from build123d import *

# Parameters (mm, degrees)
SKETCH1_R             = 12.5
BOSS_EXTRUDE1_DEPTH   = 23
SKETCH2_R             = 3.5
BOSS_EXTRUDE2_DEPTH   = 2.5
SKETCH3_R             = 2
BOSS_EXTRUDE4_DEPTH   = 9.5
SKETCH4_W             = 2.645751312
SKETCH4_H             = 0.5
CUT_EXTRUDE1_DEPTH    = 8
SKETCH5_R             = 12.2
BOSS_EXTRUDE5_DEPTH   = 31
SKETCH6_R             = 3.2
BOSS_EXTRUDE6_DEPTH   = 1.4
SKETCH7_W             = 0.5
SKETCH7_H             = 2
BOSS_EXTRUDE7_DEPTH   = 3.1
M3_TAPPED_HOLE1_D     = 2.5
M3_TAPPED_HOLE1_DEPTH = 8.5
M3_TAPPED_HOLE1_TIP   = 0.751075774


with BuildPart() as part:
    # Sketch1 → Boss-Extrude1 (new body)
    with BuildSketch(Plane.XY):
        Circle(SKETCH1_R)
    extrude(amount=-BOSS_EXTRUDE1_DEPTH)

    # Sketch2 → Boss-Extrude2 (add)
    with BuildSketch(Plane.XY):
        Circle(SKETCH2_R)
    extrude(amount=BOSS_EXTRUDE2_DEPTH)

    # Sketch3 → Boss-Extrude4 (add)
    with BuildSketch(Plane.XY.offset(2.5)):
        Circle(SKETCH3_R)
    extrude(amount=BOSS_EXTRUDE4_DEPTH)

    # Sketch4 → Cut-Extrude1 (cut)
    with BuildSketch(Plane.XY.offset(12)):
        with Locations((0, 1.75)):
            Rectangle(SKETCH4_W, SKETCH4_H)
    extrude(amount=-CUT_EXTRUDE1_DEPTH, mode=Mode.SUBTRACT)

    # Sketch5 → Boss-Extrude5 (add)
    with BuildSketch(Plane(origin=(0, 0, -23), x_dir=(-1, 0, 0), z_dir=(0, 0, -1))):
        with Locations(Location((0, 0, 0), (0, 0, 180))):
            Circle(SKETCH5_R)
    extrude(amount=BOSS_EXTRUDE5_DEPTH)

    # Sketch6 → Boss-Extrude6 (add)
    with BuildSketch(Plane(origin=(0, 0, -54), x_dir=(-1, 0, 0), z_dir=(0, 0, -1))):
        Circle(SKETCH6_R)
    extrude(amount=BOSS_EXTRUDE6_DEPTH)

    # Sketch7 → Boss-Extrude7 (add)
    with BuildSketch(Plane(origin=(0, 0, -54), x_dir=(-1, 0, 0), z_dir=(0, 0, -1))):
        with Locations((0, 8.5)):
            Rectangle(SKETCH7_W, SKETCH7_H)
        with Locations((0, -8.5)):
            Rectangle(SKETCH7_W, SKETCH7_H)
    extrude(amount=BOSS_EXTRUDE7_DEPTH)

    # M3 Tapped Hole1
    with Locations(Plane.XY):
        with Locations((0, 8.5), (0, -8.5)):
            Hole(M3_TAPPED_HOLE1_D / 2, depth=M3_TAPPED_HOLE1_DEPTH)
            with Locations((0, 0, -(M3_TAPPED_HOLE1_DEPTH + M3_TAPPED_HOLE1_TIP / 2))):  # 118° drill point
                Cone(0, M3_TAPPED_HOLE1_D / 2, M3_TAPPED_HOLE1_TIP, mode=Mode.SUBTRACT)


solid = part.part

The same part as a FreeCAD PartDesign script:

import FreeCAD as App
import Part
import Sketcher
Q = App.Units.Quantity

doc = App.newDocument("Part")
body = doc.addObject("PartDesign::Body", "Body")

sketch1 = doc.addObject("Sketcher::SketchObject", "Sketch")
body.addObject(sketch1)
sketch1.AttachmentSupport = (doc.XY_Plane, [""])
sketch1.MapMode = "FlatFace"
sketch1.addGeometry(Part.Circle(App.Vector(0, 0, 0), App.Vector(0, 0, 1), 12.5), False)
sketch1.addConstraint([
    Sketcher.Constraint("Coincident", 0, 3, -1, 1),
    Sketcher.Constraint("Diameter", 0, Q("25 mm")),
])
pad1 = doc.addObject("PartDesign::Pad", "Pad")
body.addObject(pad1)
pad1.Profile = sketch1
pad1.Length = 23
pad1.Reversed = True

sketch2 = doc.addObject("Sketcher::SketchObject", "Sketch001")
body.addObject(sketch2)
sketch2.AttachmentSupport = (doc.XY_Plane, [""])
sketch2.MapMode = "FlatFace"
sketch2.addGeometry(Part.Circle(App.Vector(0, 0, 0), App.Vector(0, 0, 1), 3.5), False)
sketch2.addConstraint([
    Sketcher.Constraint("Coincident", 0, 3, -1, 1),
    Sketcher.Constraint("Diameter", 0, Q("7 mm")),
])
pad2 = doc.addObject("PartDesign::Pad", "Pad001")
body.addObject(pad2)
pad2.Profile = sketch2
pad2.Length = 2.5

sketch3 = doc.addObject("Sketcher::SketchObject", "Sketch002")
body.addObject(sketch3)
sketch3.AttachmentSupport = (doc.XY_Plane, [""])
sketch3.MapMode = "FlatFace"
sketch3.AttachmentOffset = App.Placement(App.Vector(0, 0, 2.5), App.Rotation())
sketch3.addGeometry(Part.Circle(App.Vector(0, 0, 0), App.Vector(0, 0, 1), 2), False)
sketch3.addConstraint([
    Sketcher.Constraint("Coincident", 0, 3, -1, 1),
    Sketcher.Constraint("Diameter", 0, Q("4 mm")),
])
pad3 = doc.addObject("PartDesign::Pad", "Pad002")
body.addObject(pad3)
pad3.Profile = sketch3
pad3.Length = 9.5

sketch4 = doc.addObject("Sketcher::SketchObject", "Sketch003")
body.addObject(sketch4)
sketch4.AttachmentSupport = (doc.XY_Plane, [""])
sketch4.MapMode = "FlatFace"
sketch4.AttachmentOffset = App.Placement(App.Vector(0, 0, 12), App.Rotation())
sketch4.addGeometry([
    Part.LineSegment(App.Vector(-1.322876, 2, 0), App.Vector(-1.322876, 1.5, 0)),
    Part.LineSegment(App.Vector(-1.322876, 1.5, 0), App.Vector(1.322876, 1.5, 0)),
    Part.LineSegment(App.Vector(1.322876, 1.5, 0), App.Vector(1.322876, 2, 0)),
    Part.LineSegment(App.Vector(1.322876, 2, 0), App.Vector(-1.322876, 2, 0)),
], False)
sketch4.addConstraint([
    Sketcher.Constraint("Coincident", 0, 2, 1, 1),
    Sketcher.Constraint("Coincident", 1, 2, 2, 1),
    Sketcher.Constraint("Coincident", 2, 2, 3, 1),
    Sketcher.Constraint("Coincident", 3, 2, 0, 1),
    Sketcher.Constraint("Vertical", 0),
    Sketcher.Constraint("Horizontal", 1),
    Sketcher.Constraint("Vertical", 2),
    Sketcher.Constraint("Horizontal", 3),
    Sketcher.Constraint("DistanceY", 0, 2, 0, 1, Q("0.5 mm")),
    Sketcher.Constraint("DistanceY", -1, 1, 2, 2, Q("2 mm")),
    Sketcher.Constraint("DistanceX", 1, 1, 1, 2, Q("2.645751 mm")),
    Sketcher.Constraint("DistanceX", 0, 2, -1, 1, Q("1.322876 mm")),
])
pocket1 = doc.addObject("PartDesign::Pocket", "Pocket")
body.addObject(pocket1)
pocket1.Profile = sketch4
pocket1.Length = 8

sketch5 = doc.addObject("Sketcher::SketchObject", "Sketch004")
body.addObject(sketch5)
sketch5.AttachmentSupport = (doc.XY_Plane, [""])
sketch5.MapMode = "FlatFace"
sketch5.AttachmentOffset = App.Placement(App.Vector(0, 0, -23), App.Rotation())
sketch5.addGeometry(Part.Circle(App.Vector(0, 0, 0), App.Vector(0, 0, 1), 12.2), False)
sketch5.addConstraint([
    Sketcher.Constraint("Coincident", 0, 3, -1, 1),
    Sketcher.Constraint("Diameter", 0, Q("24.4 mm")),
])
pad4 = doc.addObject("PartDesign::Pad", "Pad003")
body.addObject(pad4)
pad4.Profile = sketch5
pad4.Length = 31
pad4.Reversed = True

sketch6 = doc.addObject("Sketcher::SketchObject", "Sketch005")
body.addObject(sketch6)
sketch6.AttachmentSupport = (doc.XY_Plane, [""])
sketch6.MapMode = "FlatFace"
sketch6.AttachmentOffset = App.Placement(App.Vector(0, 0, -54), App.Rotation())
sketch6.addGeometry(Part.Circle(App.Vector(0, 0, 0), App.Vector(0, 0, 1), 3.2), False)
sketch6.addConstraint([
    Sketcher.Constraint("Coincident", 0, 3, -1, 1),
    Sketcher.Constraint("Diameter", 0, Q("6.4 mm")),
])
pad5 = doc.addObject("PartDesign::Pad", "Pad004")
body.addObject(pad5)
pad5.Profile = sketch6
pad5.Length = 1.4
pad5.Reversed = True

sketch7 = doc.addObject("Sketcher::SketchObject", "Sketch006")
body.addObject(sketch7)
sketch7.AttachmentSupport = (doc.XY_Plane, [""])
sketch7.MapMode = "FlatFace"
sketch7.AttachmentOffset = App.Placement(App.Vector(0, 0, -54), App.Rotation())
sketch7.addGeometry([
    Part.LineSegment(App.Vector(0.25, 9.5, 0), App.Vector(0.25, 7.5, 0)),
    Part.LineSegment(App.Vector(0.25, 7.5, 0), App.Vector(-0.25, 7.5, 0)),
    Part.LineSegment(App.Vector(-0.25, 7.5, 0), App.Vector(-0.25, 9.5, 0)),
    Part.LineSegment(App.Vector(-0.25, 9.5, 0), App.Vector(0.25, 9.5, 0)),
    Part.LineSegment(App.Vector(0.25, -7.5, 0), App.Vector(0.25, -9.5, 0)),
    Part.LineSegment(App.Vector(0.25, -9.5, 0), App.Vector(-0.25, -9.5, 0)),
    Part.LineSegment(App.Vector(-0.25, -9.5, 0), App.Vector(-0.25, -7.5, 0)),
    Part.LineSegment(App.Vector(-0.25, -7.5, 0), App.Vector(0.25, -7.5, 0)),
], False)
sketch7.addConstraint([
    Sketcher.Constraint("Coincident", 0, 2, 1, 1),
    Sketcher.Constraint("Coincident", 1, 2, 2, 1),
    Sketcher.Constraint("Coincident", 2, 2, 3, 1),
    Sketcher.Constraint("Coincident", 3, 2, 0, 1),
    Sketcher.Constraint("Coincident", 4, 2, 5, 1),
    Sketcher.Constraint("Coincident", 5, 2, 6, 1),
    Sketcher.Constraint("Coincident", 6, 2, 7, 1),
    Sketcher.Constraint("Coincident", 7, 2, 4, 1),
    Sketcher.Constraint("Vertical", 0),
    Sketcher.Constraint("Horizontal", 1),
    Sketcher.Constraint("Vertical", 2),
    Sketcher.Constraint("Horizontal", 3),
    Sketcher.Constraint("Vertical", 4),
    Sketcher.Constraint("Horizontal", 5),
    Sketcher.Constraint("Vertical", 6),
    Sketcher.Constraint("Horizontal", 7),
    Sketcher.Constraint("Symmetric", 2, 2, 4, 2, -1, 1),
    Sketcher.Constraint("Symmetric", 0, 2, 6, 2, -1, 1),
    Sketcher.Constraint("Vertical", 3, 2, 4, 2),
    Sketcher.Constraint("DistanceY", 0, 2, 0, 1, Q("2 mm")),
    Sketcher.Constraint("DistanceX", 1, 2, 1, 1, Q("0.5 mm")),
    Sketcher.Constraint("DistanceY", 4, 2, 0, 2, Q("17 mm")),
])
pad6 = doc.addObject("PartDesign::Pad", "Pad005")
body.addObject(pad6)
pad6.Profile = sketch7
pad6.Length = 3.1
pad6.Reversed = True

sketch8 = doc.addObject("Sketcher::SketchObject", "Sketch007")
body.addObject(sketch8)
sketch8.AttachmentSupport = (doc.XY_Plane, [""])
sketch8.MapMode = "FlatFace"
sketch8.addGeometry([
    Part.Circle(App.Vector(0, 8.5, 0), App.Vector(0, 0, 1), 1.25),
    Part.Circle(App.Vector(0, -8.5, 0), App.Vector(0, 0, 1), 1.25),
], False)
sketch8.addConstraint([
    Sketcher.Constraint("Equal", 0, 1),
    Sketcher.Constraint("Symmetric", 0, 3, 1, 3, -1, 1),
    Sketcher.Constraint("PointOnObject", 0, 3, -2),
    Sketcher.Constraint("Diameter", 0, Q("2.5 mm")),
    Sketcher.Constraint("DistanceY", 1, 3, 0, 3, Q("17 mm")),
])
doc.recompute()
hole = doc.addObject("PartDesign::Hole", "Hole")
body.addObject(hole)
hole.Profile = sketch8
hole.ThreadType = "None"
hole.Diameter = 2.5
hole.DepthType = "Dimension"
hole.Depth = 8.5
hole.DrillPoint = "Angled"
hole.DrillPointAngle = 118

doc.recompute()
